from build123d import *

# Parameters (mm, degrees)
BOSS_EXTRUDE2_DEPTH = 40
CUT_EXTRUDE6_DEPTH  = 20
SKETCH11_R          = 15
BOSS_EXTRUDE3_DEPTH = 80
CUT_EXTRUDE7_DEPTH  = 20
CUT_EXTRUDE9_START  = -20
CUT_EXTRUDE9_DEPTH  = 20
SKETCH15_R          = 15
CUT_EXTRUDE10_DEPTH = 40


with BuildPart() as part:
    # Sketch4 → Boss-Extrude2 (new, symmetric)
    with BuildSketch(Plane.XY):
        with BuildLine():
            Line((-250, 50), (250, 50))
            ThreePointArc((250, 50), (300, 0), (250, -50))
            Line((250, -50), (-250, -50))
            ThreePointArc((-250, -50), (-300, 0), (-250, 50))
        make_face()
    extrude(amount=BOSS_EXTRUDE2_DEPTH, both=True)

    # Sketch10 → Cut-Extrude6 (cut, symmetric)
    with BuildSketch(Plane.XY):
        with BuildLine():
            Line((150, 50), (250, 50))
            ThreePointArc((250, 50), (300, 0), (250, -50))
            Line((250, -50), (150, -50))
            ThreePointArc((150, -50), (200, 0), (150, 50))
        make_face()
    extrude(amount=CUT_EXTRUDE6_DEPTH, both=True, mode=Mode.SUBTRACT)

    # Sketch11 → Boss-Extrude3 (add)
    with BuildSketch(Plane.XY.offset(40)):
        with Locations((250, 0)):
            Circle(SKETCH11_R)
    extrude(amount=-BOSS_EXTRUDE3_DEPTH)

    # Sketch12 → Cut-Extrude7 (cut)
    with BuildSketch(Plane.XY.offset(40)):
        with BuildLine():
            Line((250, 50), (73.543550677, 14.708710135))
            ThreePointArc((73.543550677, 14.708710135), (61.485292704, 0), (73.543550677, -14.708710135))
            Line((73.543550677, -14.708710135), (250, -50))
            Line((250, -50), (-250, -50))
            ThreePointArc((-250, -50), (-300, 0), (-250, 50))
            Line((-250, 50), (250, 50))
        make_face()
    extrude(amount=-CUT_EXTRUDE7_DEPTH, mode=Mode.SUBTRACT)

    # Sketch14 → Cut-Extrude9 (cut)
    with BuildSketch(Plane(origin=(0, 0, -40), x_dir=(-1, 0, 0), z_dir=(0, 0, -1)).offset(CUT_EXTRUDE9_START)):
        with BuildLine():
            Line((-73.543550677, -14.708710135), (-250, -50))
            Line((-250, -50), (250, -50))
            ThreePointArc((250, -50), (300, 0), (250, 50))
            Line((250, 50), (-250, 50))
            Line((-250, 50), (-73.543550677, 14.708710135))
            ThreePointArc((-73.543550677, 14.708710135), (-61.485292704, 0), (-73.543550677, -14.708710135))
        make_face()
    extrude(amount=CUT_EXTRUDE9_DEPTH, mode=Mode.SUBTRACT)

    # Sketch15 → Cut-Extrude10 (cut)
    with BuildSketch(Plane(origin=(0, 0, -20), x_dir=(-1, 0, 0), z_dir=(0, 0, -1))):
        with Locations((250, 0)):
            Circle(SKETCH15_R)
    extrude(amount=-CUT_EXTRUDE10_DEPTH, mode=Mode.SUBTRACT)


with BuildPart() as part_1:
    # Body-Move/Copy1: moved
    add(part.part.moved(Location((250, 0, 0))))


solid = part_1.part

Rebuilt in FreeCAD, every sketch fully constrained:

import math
import FreeCAD as App
import Part
import Sketcher

doc = App.newDocument("Part")
body = doc.addObject("PartDesign::Body", "Body")

# Sketch on XY plane
sketch1 = body.newObject("Sketcher::SketchObject", "Sketch")
sketch1.AttachmentSupport = (doc.getObject("XY_Plane"), [""])
sketch1.MapMode = "FlatFace"
sketch1.addGeometry(Part.LineSegment(App.Vector(250, 50, 0), App.Vector(-250, 50, 0)), False)
sketch1.addGeometry(Part.ArcOfCircle(Part.Circle(App.Vector(-250, 0, 0), App.Vector(0, 0, 1), 50), math.radians(90), math.radians(270)), False)
sketch1.addGeometry(Part.LineSegment(App.Vector(-250, -50, 0), App.Vector(250, -50, 0)), False)
sketch1.addGeometry(Part.ArcOfCircle(Part.Circle(App.Vector(250, 0, 0), App.Vector(0, 0, 1), 50), math.radians(-90), math.radians(90)), False)
sketch1.addConstraint(Sketcher.Constraint("Tangent", 0, 2, 1, 1))
sketch1.addConstraint(Sketcher.Constraint("Tangent", 1, 2, 2, 1))
sketch1.addConstraint(Sketcher.Constraint("Tangent", 2, 2, 3, 1))
sketch1.addConstraint(Sketcher.Constraint("Tangent", 3, 2, 0, 1))
sketch1.addConstraint(Sketcher.Constraint("Horizontal", 0))
sketch1.addConstraint(Sketcher.Constraint("Horizontal", 2))
sketch1.addConstraint(Sketcher.Constraint("Symmetric", 1, 3, 3, 3, -1, 1))
sketch1.addConstraint(Sketcher.Constraint("Radius", 1, 50.0))
sketch1.addConstraint(Sketcher.Constraint("DistanceX", 0, 2, 0, 1, 500.0))
pad1 = body.newObject("PartDesign::Pad", "Pad")
pad1.Profile = sketch1
pad1.Length = 80
pad1.Midplane = True

# Sketch on XY plane
sketch2 = body.newObject("Sketcher::SketchObject", "Sketch001")
sketch2.AttachmentSupport = (doc.getObject("XY_Plane"), [""])
sketch2.MapMode = "FlatFace"
sketch2.addGeometry(Part.LineSegment(App.Vector(250, 50, 0), App.Vector(150, 50, 0)), False)
sketch2.addGeometry(Part.ArcOfCircle(Part.Circle(App.Vector(150, 0, 0), App.Vector(0, 0, 1), 50), math.radians(-90), math.radians(90)), False)
sketch2.addGeometry(Part.LineSegment(App.Vector(150, -50, 0), App.Vector(250, -50, 0)), False)
sketch2.addGeometry(Part.ArcOfCircle(Part.Circle(App.Vector(250, 0, 0), App.Vector(0, 0, 1), 50), math.radians(-90), math.radians(90)), False)
sketch2.addConstraint(Sketcher.Constraint("Tangent", 0, 2, 1, 2))
sketch2.addConstraint(Sketcher.Constraint("Tangent", 1, 1, 2, 1))
sketch2.addConstraint(Sketcher.Constraint("Tangent", 2, 2, 3, 1))
sketch2.addConstraint(Sketcher.Constraint("Tangent", 3, 2, 0, 1))
sketch2.addConstraint(Sketcher.Constraint("Horizontal", 0))
sketch2.addConstraint(Sketcher.Constraint("Horizontal", 2))
sketch2.addConstraint(Sketcher.Constraint("PointOnObject", 1, 3, -1))
sketch2.addConstraint(Sketcher.Constraint("Radius", 1, 50.0))
sketch2.addConstraint(Sketcher.Constraint("DistanceX", 0, 2, 0, 1, 100.0))
sketch2.addConstraint(Sketcher.Constraint("DistanceX", -1, 1, 1, 3, 150.0))
pocket1 = body.newObject("PartDesign::Pocket", "Pocket")
pocket1.Profile = sketch2
pocket1.Length = 40
pocket1.Midplane = True

# Sketch on XY plane
sketch3 = body.newObject("Sketcher::SketchObject", "Sketch002")
sketch3.AttachmentSupport = (doc.getObject("XY_Plane"), [""])
sketch3.MapMode = "FlatFace"
sketch3.AttachmentOffset = App.Placement(App.Vector(0, 0, 40), App.Rotation())
sketch3.addGeometry(Part.Circle(App.Vector(250, 0, 0), App.Vector(0, 0, 1), 15), False)
sketch3.addConstraint(Sketcher.Constraint("PointOnObject", 0, 3, -1))
sketch3.addConstraint(Sketcher.Constraint("Diameter", 0, 30.0))
sketch3.addConstraint(Sketcher.Constraint("DistanceX", -1, 1, 0, 3, 250.0))
pad2 = body.newObject("PartDesign::Pad", "Pad001")
pad2.Profile = sketch3
pad2.Length = 80
pad2.Reversed = True

# Sketch on XY plane
sketch4 = body.newObject("Sketcher::SketchObject", "Sketch003")
sketch4.AttachmentSupport = (doc.getObject("XY_Plane"), [""])
sketch4.MapMode = "FlatFace"
sketch4.AttachmentOffset = App.Placement(App.Vector(0, 0, 40), App.Rotation())
sketch4.addGeometry(Part.LineSegment(App.Vector(74, 15, 0), App.Vector(250, 50, 0)), False)
sketch4.addGeometry(Part.LineSegment(App.Vector(250, 50, 0), App.Vector(-250, 50, 0)), False)
sketch4.addGeometry(Part.ArcOfCircle(Part.Circle(App.Vector(-250, 0, 0), App.Vector(0, 0, 1), 50), math.radians(90), math.radians(270)), False)
sketch4.addGeometry(Part.LineSegment(App.Vector(-250, -50, 0), App.Vector(250, -50, 0)), False)
sketch4.addGeometry(Part.LineSegment(App.Vector(250, -50, 0), App.Vector(74, -15, 0)), False)
sketch4.addGeometry(Part.ArcOfCircle(Part.Circle(App.Vector(76, 0, 0), App.Vector(0, 0, 1), 15), math.radians(101), math.radians(259)), False)
sketch4.addConstraint(Sketcher.Constraint("Coincident", 0, 2, 1, 1))
sketch4.addConstraint(Sketcher.Constraint("Tangent", 1, 2, 2, 1))
sketch4.addConstraint(Sketcher.Constraint("Tangent", 2, 2, 3, 1))
sketch4.addConstraint(Sketcher.Constraint("Coincident", 3, 2, 4, 1))
sketch4.addConstraint(Sketcher.Constraint("Tangent", 4, 2, 5, 2))
sketch4.addConstraint(Sketcher.Constraint("Tangent", 5, 1, 0, 1))
sketch4.addConstraint(Sketcher.Constraint("Horizontal", 1))
sketch4.addConstraint(Sketcher.Constraint("Horizontal", 3))
sketch4.addConstraint(Sketcher.Constraint("Symmetric", 0, 2, 2, 2, -1, 1))
sketch4.addConstraint(Sketcher.Constraint("Symmetric", 4, 2, 5, 1, -1))
sketch4.addConstraint(Sketcher.Constraint("Radius", 2, 50.0))
sketch4.addConstraint(Sketcher.Constraint("Radius", 5, 15.0))
sketch4.addConstraint(Sketcher.Constraint("DistanceX", 1, 2, 1, 1, 500.0))
sketch4.addConstraint(Sketcher.Constraint("DistanceX", -1, 1, 4, 2, 73.543551))
pocket2 = body.newObject("PartDesign::Pocket", "Pocket001")
pocket2.Profile = sketch4
pocket2.Length = 20

# Sketch on XY plane
sketch5 = body.newObject("Sketcher::SketchObject", "Sketch004")
sketch5.AttachmentSupport = (doc.getObject("XY_Plane"), [""])
sketch5.MapMode = "FlatFace"
sketch5.AttachmentOffset = App.Placement(App.Vector(0, 0, -20), App.Rotation())
sketch5.addGeometry(Part.LineSegment(App.Vector(74, -15, 0), App.Vector(250, -50, 0)), False)
sketch5.addGeometry(Part.LineSegment(App.Vector(250, -50, 0), App.Vector(-250, -50, 0)), False)
sketch5.addGeometry(Part.ArcOfCircle(Part.Circle(App.Vector(-250, 0, 0), App.Vector(0, 0, 1), 50), math.radians(90), math.radians(270)), False)
sketch5.addGeometry(Part.LineSegment(App.Vector(-250, 50, 0), App.Vector(250, 50, 0)), False)
sketch5.addGeometry(Part.LineSegment(App.Vector(250, 50, 0), App.Vector(74, 15, 0)), False)
sketch5.addGeometry(Part.ArcOfCircle(Part.Circle(App.Vector(76, 0, 0), App.Vector(0, 0, 1), 15), math.radians(101), math.radians(259)), False)
sketch5.addConstraint(Sketcher.Constraint("Coincident", 0, 2, 1, 1))
sketch5.addConstraint(Sketcher.Constraint("Tangent", 1, 2, 2, 2))
sketch5.addConstraint(Sketcher.Constraint("Tangent", 2, 1, 3, 1))
sketch5.addConstraint(Sketcher.Constraint("Coincident", 3, 2, 4, 1))
sketch5.addConstraint(Sketcher.Constraint("Tangent", 4, 2, 5, 1))
sketch5.addConstraint(Sketcher.Constraint("Tangent", 5, 2, 0, 1))
sketch5.addConstraint(Sketcher.Constraint("Horizontal", 1))
sketch5.addConstraint(Sketcher.Constraint("Horizontal", 3))
sketch5.addConstraint(Sketcher.Constraint("Symmetric", 0, 2, 2, 1, -1, 1))
sketch5.addConstraint(Sketcher.Constraint("Symmetric", 4, 2, 5, 2, -1))
sketch5.addConstraint(Sketcher.Constraint("Radius", 2, 50.0))
sketch5.addConstraint(Sketcher.Constraint("Radius", 5, 15.0))
sketch5.addConstraint(Sketcher.Constraint("DistanceX", 1, 2, 1, 1, 500.0))
sketch5.addConstraint(Sketcher.Constraint("DistanceX", -1, 1, 4, 2, 73.543551))
pocket3 = body.newObject("PartDesign::Pocket", "Pocket002")
pocket3.Profile = sketch5
pocket3.Length = 20

# Sketch on XY plane
sketch6 = body.newObject("Sketcher::SketchObject", "Sketch005")
sketch6.AttachmentSupport = (doc.getObject("XY_Plane"), [""])
sketch6.MapMode = "FlatFace"
sketch6.AttachmentOffset = App.Placement(App.Vector(0, 0, -20), App.Rotation())
sketch6.addGeometry(Part.Circle(App.Vector(-250, 0, 0), App.Vector(0, 0, 1), 15), False)
sketch6.addConstraint(Sketcher.Constraint("PointOnObject", 0, 3, -1))
sketch6.addConstraint(Sketcher.Constraint("Diameter", 0, 30.0))
sketch6.addConstraint(Sketcher.Constraint("DistanceX", 0, 3, -1, 1, 250.0))
pocket4 = body.newObject("PartDesign::Pocket", "Pocket003")
pocket4.Profile = sketch6
pocket4.Length = 40
pocket4.Reversed = True
body2 = doc.addObject("PartDesign::Body", "Body001")
doc.recompute()

body.Placement = App.Placement(App.Vector(250, 0, 0), App.Rotation(App.Vector(0, 0, 1), 0))
boolean = body2.newObject("PartDesign::Boolean", "Boolean")
boolean.Type = "Fuse"
boolean.addObjects([body])

doc.recompute()
